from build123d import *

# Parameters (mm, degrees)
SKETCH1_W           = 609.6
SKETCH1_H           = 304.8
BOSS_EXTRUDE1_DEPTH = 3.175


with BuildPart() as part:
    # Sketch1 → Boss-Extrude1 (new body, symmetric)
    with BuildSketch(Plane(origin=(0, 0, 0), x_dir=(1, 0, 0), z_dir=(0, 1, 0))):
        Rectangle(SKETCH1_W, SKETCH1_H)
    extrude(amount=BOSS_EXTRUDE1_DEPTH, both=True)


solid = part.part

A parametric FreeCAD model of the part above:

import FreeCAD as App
import Part
import Sketcher

V = App.Vector
Q = App.Units.Quantity

doc = App.newDocument("Part")
body = doc.addObject("PartDesign::Body", "Body")

# Sketch on XZ plane
sketch1 = doc.addObject("Sketcher::SketchObject", "Sketch")
body.addObject(sketch1)
sketch1.AttachmentSupport = (doc.XZ_Plane, [""])
sketch1.MapMode = "FlatFace"
sketch1.addGeometry([
    Part.LineSegment(V(-305, -152, 0), V(-305, 152, 0)),
    Part.LineSegment(V(-305, 152, 0), V(305, 152, 0)),
    Part.LineSegment(V(305, 152, 0), V(305, -152, 0)),
    Part.LineSegment(V(305, -152, 0), V(-305, -152, 0)),
], False)
sketch1.addConstraint([
    Sketcher.Constraint("Coincident", 0, 2, 1, 1),
    Sketcher.Constraint("Coincident", 1, 2, 2, 1),
    Sketcher.Constraint("Coincident", 2, 2, 3, 1),
    Sketcher.Constraint("Coincident", 3, 2, 0, 1),
    Sketcher.Constraint("Vertical", 0),
    Sketcher.Constraint("Horizontal", 1),
    Sketcher.Constraint("Vertical", 2),
    Sketcher.Constraint("Horizontal", 3),
    Sketcher.Constraint("Symmetric", 0, 2, 2, 2, -1, 1),
    Sketcher.Constraint("DistanceX", 1, 1, 1, 2, Q("24 in")),
    Sketcher.Constraint("DistanceY", 0, 1, 0, 2, Q("12 in")),
])
pad1 = doc.addObject("PartDesign::Pad", "Pad")
body.addObject(pad1)
pad1.Profile = sketch1
pad1.Length = Q("0.25 in")
pad1.Midplane = True

doc.recompute()
